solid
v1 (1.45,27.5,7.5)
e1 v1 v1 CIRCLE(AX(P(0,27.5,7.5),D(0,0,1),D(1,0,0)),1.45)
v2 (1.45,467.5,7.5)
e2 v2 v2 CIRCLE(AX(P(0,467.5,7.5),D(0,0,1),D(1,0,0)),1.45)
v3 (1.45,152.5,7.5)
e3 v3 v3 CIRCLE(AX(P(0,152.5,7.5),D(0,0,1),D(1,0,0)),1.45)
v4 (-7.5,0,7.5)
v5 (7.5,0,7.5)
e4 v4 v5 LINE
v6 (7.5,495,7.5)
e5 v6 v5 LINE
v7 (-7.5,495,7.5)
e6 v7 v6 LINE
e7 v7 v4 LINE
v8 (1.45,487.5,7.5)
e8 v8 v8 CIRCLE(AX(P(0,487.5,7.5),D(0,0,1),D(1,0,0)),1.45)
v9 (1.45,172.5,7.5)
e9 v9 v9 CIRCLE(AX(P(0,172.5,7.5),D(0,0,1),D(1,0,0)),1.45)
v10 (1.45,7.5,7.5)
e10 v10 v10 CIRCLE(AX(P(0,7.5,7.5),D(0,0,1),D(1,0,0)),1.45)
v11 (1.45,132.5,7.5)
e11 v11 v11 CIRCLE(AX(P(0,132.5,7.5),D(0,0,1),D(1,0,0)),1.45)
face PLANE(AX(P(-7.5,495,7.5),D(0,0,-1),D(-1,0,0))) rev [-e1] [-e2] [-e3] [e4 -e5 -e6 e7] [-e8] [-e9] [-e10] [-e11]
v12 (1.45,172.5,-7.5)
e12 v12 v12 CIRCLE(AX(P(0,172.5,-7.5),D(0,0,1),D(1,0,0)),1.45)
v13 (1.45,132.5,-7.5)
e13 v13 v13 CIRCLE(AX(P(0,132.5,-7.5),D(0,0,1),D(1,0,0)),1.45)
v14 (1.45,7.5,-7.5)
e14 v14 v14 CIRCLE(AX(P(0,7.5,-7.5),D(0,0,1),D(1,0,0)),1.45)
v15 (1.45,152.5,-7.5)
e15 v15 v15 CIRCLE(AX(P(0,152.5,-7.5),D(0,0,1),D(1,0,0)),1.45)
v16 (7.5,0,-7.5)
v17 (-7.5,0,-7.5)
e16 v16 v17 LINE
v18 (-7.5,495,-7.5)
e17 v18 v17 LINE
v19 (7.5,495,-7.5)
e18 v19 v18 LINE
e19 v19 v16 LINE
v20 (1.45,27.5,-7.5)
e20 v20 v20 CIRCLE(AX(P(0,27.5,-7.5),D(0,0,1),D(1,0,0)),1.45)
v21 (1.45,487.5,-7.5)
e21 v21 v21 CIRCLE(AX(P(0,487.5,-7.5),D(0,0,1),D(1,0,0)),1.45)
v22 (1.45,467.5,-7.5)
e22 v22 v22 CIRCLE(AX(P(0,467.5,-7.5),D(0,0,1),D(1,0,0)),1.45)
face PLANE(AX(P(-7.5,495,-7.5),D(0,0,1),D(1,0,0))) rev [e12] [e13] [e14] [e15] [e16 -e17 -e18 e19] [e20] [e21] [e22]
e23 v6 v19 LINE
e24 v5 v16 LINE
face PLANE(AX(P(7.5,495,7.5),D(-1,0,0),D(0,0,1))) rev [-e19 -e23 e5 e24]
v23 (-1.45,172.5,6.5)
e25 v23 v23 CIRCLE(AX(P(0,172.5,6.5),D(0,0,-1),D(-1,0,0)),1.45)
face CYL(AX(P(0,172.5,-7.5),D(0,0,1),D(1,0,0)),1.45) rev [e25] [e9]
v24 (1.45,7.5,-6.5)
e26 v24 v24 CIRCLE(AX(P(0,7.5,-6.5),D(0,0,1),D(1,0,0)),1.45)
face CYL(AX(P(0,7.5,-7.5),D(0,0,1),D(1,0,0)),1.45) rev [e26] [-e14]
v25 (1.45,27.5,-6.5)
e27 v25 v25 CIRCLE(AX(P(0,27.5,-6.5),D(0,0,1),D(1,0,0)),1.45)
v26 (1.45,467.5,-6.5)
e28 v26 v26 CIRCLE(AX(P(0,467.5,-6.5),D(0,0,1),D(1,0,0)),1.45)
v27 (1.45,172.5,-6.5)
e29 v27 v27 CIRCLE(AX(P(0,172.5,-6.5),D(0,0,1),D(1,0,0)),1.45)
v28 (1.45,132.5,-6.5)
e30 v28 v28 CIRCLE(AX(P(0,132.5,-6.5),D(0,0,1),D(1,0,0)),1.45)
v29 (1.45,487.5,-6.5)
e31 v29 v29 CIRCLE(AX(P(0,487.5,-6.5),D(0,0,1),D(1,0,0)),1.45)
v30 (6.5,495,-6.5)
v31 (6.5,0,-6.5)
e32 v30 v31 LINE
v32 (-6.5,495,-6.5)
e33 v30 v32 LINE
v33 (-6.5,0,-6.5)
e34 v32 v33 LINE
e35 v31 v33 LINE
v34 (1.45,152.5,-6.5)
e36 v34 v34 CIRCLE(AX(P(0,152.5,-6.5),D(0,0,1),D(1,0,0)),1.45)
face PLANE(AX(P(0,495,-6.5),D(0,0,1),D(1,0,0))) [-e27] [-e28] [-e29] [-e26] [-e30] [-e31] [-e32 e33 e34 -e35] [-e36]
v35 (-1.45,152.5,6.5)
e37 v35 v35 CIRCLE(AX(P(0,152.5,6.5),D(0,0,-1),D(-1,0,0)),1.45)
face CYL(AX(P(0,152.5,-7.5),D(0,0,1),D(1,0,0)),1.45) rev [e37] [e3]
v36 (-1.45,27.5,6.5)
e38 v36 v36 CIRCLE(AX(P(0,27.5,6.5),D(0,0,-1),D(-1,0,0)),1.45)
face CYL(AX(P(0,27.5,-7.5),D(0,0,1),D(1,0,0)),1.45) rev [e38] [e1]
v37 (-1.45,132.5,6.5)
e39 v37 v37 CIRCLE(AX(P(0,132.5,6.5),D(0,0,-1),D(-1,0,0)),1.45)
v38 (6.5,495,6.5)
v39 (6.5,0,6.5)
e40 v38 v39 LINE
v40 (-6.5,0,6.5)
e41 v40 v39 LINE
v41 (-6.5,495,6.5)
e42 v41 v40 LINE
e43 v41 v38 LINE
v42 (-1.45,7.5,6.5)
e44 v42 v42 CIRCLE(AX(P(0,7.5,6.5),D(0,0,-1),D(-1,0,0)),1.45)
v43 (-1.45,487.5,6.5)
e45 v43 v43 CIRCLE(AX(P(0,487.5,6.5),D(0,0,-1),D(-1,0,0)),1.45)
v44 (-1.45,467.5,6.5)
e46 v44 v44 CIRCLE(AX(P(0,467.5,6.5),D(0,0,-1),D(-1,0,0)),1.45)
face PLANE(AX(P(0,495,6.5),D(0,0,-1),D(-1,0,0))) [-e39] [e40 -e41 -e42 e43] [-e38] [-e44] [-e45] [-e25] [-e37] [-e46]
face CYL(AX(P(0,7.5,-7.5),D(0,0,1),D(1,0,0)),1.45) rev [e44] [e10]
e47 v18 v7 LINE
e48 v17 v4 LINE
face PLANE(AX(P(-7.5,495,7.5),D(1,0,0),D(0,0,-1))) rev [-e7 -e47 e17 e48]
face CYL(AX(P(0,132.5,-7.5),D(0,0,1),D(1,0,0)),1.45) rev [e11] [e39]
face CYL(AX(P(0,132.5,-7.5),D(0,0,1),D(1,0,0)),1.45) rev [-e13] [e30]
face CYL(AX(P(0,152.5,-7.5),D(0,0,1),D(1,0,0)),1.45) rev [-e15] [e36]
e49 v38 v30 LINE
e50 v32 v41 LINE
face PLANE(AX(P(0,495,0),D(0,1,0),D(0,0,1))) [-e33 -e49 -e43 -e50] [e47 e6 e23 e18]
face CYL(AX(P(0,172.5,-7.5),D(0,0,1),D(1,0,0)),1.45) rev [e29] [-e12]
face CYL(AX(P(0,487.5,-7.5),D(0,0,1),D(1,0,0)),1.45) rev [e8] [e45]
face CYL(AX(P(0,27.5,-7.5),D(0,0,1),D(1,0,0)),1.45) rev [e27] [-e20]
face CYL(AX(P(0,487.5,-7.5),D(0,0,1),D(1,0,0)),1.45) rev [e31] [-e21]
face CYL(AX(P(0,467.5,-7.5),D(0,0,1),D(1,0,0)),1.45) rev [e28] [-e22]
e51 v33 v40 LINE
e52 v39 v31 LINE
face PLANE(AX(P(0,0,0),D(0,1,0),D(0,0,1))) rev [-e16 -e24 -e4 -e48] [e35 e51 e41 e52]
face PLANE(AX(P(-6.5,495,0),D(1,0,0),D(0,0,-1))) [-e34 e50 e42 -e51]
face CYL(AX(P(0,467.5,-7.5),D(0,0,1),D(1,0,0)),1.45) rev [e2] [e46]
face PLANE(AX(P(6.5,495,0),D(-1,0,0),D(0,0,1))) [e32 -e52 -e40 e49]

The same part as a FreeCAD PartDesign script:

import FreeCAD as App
import Part
import Sketcher

V = App.Vector
Q = App.Units.Quantity

doc = App.newDocument("Part")
params = doc.addObject("Spreadsheet::Sheet", "Params")
for row, (alias, value) in enumerate([
    ("sketch1_width", "15 mm"),
    ("sketch1_width2", "13 mm"),
    ("pad1_length", "495 mm"),
    ("sketch2_diameter", "2.9 mm"),
], start=1):
    params.set(f"A{row}", alias)
    params.set(f"B{row}", "=" + value)
    params.setAlias(f"B{row}", alias)

body = doc.addObject("PartDesign::Body", "Body")

# Sketch on XZ plane
sketch1 = body.newObject("Sketcher::SketchObject", "Sketch")
sketch1.AttachmentSupport = (doc.getObject("XZ_Plane"), [""])
sketch1.MapMode = "FlatFace"
sketch1.addGeometry([
    Part.LineSegment(V(-8, -8, 0), V(-8, 8, 0)),  # 0
    Part.LineSegment(V(-8, 8, 0), V(8, 8, 0)),  # 1
    Part.LineSegment(V(8, 8, 0), V(8, -8, 0)),  # 2
    Part.LineSegment(V(8, -8, 0), V(-8, -8, 0)),  # 3
    Part.LineSegment(V(6, 6, 0), V(-6, 6, 0)),  # 4
    Part.LineSegment(V(-6, 6, 0), V(-6, -6, 0)),  # 5
    Part.LineSegment(V(-6, -6, 0), V(6, -6, 0)),  # 6
    Part.LineSegment(V(6, -6, 0), V(6, 6, 0)),  # 7
], False)
sketch1.addConstraint([
    Sketcher.Constraint("Coincident", 0, 2, 1, 1),
    Sketcher.Constraint("Coincident", 1, 2, 2, 1),
    Sketcher.Constraint("Coincident", 2, 2, 3, 1),
    Sketcher.Constraint("Coincident", 3, 2, 0, 1),
    Sketcher.Constraint("Coincident", 4, 2, 5, 1),
    Sketcher.Constraint("Coincident", 5, 2, 6, 1),
    Sketcher.Constraint("Coincident", 6, 2, 7, 1),
    Sketcher.Constraint("Coincident", 7, 2, 4, 1),
    Sketcher.Constraint("Vertical", 0),
    Sketcher.Constraint("Horizontal", 1),
    Sketcher.Constraint("Vertical", 2),
    Sketcher.Constraint("Horizontal", 3),
    Sketcher.Constraint("Horizontal", 4),
    Sketcher.Constraint("Vertical", 5),
    Sketcher.Constraint("Horizontal", 6),
    Sketcher.Constraint("Vertical", 7),
    Sketcher.Constraint("Symmetric", 0, 2, 2, 2, -1, 1),
    Sketcher.Constraint("Symmetric", 4, 2, 6, 2, -1, 1),
    Sketcher.Constraint("Equal", 3, 0),
    Sketcher.Constraint("Equal", 6, 5),
    Sketcher.Constraint("DistanceX", 1, 1, 1, 2, Q("15 mm")),
    Sketcher.Constraint("DistanceX", 4, 2, 4, 1, Q("13 mm")),
])
sketch1.setExpression("Constraints[20]", "Params.sketch1_width")
sketch1.setExpression("Constraints[21]", "Params.sketch1_width2")
pad1 = body.newObject("PartDesign::Pad", "Pad")
pad1.Profile = sketch1
pad1.setExpression("Length", "Params.pad1_length")
pad1.Reversed = True

# Sketch on XY plane
sketch2 = body.newObject("Sketcher::SketchObject", "Sketch001")
sketch2.AttachmentSupport = (doc.getObject("XY_Plane"), [""])
sketch2.MapMode = "FlatFace"
sketch2.AttachmentOffset = App.Placement(V(0, 0, 7.5), App.Rotation())
sketch2.addGeometry([
    Part.Circle(V(0, 487.5, 0), V(0, 0, 1), 1.4),  # 0
    Part.Circle(V(0, 467.5, 0), V(0, 0, 1), 1.4),  # 1
    Part.Circle(V(0, 27.5, 0), V(0, 0, 1), 1.4),  # 2
    Part.Circle(V(0, 7.5, 0), V(0, 0, 1), 1.4),  # 3
    Part.Circle(V(0, 152.5, 0), V(0, 0, 1), 1.4),  # 4
    Part.Circle(V(0, 172.5, 0), V(0, 0, 1), 1.4),  # 5
    Part.Circle(V(0, 132.5, 0), V(0, 0, 1), 1.4),  # 6
], False)
sketch2.addConstraint([
    Sketcher.Constraint("Equal", 0, 1),
    Sketcher.Constraint("Equal", 1, 2),
    Sketcher.Constraint("Equal", 2, 3),
    Sketcher.Constraint("Equal", 3, 4),
    Sketcher.Constraint("Equal", 4, 5),
    Sketcher.Constraint("Equal", 5, 6),
    Sketcher.Constraint("PointOnObject", 0, 3, -2),
    Sketcher.Constraint("PointOnObject", 1, 3, -2),
    Sketcher.Constraint("PointOnObject", 2, 3, -2),
    Sketcher.Constraint("PointOnObject", 3, 3, -2),
    Sketcher.Constraint("PointOnObject", 4, 3, -2),
    Sketcher.Constraint("PointOnObject", 5, 3, -2),
    Sketcher.Constraint("PointOnObject", 6, 3, -2),
    Sketcher.Constraint("Diameter", 0, Q("2.9 mm")),
    Sketcher.Constraint("DistanceY", 1, 3, 0, 3, Q("20 mm")),
    Sketcher.Constraint("DistanceY", 2, 3, 1, 3, Q("440 mm")),
    Sketcher.Constraint("DistanceY", 3, 3, 2, 3, Q("20 mm")),
    Sketcher.Constraint("DistanceY", 2, 3, 4, 3, Q("125 mm")),
    Sketcher.Constraint("DistanceY", 4, 3, 5, 3, Q("20 mm")),
    Sketcher.Constraint("DistanceY", 6, 3, 4, 3, Q("20 mm")),
    Sketcher.Constraint("DistanceY", -1, 1, 0, 3, Q("487.5 mm")),
])
sketch2.setExpression("Constraints[13]", "Params.sketch2_diameter")
pocket1 = body.newObject("PartDesign::Pocket", "Pocket")
pocket1.Profile = sketch2
pocket1.Type = "ThroughAll"

doc.recompute()
